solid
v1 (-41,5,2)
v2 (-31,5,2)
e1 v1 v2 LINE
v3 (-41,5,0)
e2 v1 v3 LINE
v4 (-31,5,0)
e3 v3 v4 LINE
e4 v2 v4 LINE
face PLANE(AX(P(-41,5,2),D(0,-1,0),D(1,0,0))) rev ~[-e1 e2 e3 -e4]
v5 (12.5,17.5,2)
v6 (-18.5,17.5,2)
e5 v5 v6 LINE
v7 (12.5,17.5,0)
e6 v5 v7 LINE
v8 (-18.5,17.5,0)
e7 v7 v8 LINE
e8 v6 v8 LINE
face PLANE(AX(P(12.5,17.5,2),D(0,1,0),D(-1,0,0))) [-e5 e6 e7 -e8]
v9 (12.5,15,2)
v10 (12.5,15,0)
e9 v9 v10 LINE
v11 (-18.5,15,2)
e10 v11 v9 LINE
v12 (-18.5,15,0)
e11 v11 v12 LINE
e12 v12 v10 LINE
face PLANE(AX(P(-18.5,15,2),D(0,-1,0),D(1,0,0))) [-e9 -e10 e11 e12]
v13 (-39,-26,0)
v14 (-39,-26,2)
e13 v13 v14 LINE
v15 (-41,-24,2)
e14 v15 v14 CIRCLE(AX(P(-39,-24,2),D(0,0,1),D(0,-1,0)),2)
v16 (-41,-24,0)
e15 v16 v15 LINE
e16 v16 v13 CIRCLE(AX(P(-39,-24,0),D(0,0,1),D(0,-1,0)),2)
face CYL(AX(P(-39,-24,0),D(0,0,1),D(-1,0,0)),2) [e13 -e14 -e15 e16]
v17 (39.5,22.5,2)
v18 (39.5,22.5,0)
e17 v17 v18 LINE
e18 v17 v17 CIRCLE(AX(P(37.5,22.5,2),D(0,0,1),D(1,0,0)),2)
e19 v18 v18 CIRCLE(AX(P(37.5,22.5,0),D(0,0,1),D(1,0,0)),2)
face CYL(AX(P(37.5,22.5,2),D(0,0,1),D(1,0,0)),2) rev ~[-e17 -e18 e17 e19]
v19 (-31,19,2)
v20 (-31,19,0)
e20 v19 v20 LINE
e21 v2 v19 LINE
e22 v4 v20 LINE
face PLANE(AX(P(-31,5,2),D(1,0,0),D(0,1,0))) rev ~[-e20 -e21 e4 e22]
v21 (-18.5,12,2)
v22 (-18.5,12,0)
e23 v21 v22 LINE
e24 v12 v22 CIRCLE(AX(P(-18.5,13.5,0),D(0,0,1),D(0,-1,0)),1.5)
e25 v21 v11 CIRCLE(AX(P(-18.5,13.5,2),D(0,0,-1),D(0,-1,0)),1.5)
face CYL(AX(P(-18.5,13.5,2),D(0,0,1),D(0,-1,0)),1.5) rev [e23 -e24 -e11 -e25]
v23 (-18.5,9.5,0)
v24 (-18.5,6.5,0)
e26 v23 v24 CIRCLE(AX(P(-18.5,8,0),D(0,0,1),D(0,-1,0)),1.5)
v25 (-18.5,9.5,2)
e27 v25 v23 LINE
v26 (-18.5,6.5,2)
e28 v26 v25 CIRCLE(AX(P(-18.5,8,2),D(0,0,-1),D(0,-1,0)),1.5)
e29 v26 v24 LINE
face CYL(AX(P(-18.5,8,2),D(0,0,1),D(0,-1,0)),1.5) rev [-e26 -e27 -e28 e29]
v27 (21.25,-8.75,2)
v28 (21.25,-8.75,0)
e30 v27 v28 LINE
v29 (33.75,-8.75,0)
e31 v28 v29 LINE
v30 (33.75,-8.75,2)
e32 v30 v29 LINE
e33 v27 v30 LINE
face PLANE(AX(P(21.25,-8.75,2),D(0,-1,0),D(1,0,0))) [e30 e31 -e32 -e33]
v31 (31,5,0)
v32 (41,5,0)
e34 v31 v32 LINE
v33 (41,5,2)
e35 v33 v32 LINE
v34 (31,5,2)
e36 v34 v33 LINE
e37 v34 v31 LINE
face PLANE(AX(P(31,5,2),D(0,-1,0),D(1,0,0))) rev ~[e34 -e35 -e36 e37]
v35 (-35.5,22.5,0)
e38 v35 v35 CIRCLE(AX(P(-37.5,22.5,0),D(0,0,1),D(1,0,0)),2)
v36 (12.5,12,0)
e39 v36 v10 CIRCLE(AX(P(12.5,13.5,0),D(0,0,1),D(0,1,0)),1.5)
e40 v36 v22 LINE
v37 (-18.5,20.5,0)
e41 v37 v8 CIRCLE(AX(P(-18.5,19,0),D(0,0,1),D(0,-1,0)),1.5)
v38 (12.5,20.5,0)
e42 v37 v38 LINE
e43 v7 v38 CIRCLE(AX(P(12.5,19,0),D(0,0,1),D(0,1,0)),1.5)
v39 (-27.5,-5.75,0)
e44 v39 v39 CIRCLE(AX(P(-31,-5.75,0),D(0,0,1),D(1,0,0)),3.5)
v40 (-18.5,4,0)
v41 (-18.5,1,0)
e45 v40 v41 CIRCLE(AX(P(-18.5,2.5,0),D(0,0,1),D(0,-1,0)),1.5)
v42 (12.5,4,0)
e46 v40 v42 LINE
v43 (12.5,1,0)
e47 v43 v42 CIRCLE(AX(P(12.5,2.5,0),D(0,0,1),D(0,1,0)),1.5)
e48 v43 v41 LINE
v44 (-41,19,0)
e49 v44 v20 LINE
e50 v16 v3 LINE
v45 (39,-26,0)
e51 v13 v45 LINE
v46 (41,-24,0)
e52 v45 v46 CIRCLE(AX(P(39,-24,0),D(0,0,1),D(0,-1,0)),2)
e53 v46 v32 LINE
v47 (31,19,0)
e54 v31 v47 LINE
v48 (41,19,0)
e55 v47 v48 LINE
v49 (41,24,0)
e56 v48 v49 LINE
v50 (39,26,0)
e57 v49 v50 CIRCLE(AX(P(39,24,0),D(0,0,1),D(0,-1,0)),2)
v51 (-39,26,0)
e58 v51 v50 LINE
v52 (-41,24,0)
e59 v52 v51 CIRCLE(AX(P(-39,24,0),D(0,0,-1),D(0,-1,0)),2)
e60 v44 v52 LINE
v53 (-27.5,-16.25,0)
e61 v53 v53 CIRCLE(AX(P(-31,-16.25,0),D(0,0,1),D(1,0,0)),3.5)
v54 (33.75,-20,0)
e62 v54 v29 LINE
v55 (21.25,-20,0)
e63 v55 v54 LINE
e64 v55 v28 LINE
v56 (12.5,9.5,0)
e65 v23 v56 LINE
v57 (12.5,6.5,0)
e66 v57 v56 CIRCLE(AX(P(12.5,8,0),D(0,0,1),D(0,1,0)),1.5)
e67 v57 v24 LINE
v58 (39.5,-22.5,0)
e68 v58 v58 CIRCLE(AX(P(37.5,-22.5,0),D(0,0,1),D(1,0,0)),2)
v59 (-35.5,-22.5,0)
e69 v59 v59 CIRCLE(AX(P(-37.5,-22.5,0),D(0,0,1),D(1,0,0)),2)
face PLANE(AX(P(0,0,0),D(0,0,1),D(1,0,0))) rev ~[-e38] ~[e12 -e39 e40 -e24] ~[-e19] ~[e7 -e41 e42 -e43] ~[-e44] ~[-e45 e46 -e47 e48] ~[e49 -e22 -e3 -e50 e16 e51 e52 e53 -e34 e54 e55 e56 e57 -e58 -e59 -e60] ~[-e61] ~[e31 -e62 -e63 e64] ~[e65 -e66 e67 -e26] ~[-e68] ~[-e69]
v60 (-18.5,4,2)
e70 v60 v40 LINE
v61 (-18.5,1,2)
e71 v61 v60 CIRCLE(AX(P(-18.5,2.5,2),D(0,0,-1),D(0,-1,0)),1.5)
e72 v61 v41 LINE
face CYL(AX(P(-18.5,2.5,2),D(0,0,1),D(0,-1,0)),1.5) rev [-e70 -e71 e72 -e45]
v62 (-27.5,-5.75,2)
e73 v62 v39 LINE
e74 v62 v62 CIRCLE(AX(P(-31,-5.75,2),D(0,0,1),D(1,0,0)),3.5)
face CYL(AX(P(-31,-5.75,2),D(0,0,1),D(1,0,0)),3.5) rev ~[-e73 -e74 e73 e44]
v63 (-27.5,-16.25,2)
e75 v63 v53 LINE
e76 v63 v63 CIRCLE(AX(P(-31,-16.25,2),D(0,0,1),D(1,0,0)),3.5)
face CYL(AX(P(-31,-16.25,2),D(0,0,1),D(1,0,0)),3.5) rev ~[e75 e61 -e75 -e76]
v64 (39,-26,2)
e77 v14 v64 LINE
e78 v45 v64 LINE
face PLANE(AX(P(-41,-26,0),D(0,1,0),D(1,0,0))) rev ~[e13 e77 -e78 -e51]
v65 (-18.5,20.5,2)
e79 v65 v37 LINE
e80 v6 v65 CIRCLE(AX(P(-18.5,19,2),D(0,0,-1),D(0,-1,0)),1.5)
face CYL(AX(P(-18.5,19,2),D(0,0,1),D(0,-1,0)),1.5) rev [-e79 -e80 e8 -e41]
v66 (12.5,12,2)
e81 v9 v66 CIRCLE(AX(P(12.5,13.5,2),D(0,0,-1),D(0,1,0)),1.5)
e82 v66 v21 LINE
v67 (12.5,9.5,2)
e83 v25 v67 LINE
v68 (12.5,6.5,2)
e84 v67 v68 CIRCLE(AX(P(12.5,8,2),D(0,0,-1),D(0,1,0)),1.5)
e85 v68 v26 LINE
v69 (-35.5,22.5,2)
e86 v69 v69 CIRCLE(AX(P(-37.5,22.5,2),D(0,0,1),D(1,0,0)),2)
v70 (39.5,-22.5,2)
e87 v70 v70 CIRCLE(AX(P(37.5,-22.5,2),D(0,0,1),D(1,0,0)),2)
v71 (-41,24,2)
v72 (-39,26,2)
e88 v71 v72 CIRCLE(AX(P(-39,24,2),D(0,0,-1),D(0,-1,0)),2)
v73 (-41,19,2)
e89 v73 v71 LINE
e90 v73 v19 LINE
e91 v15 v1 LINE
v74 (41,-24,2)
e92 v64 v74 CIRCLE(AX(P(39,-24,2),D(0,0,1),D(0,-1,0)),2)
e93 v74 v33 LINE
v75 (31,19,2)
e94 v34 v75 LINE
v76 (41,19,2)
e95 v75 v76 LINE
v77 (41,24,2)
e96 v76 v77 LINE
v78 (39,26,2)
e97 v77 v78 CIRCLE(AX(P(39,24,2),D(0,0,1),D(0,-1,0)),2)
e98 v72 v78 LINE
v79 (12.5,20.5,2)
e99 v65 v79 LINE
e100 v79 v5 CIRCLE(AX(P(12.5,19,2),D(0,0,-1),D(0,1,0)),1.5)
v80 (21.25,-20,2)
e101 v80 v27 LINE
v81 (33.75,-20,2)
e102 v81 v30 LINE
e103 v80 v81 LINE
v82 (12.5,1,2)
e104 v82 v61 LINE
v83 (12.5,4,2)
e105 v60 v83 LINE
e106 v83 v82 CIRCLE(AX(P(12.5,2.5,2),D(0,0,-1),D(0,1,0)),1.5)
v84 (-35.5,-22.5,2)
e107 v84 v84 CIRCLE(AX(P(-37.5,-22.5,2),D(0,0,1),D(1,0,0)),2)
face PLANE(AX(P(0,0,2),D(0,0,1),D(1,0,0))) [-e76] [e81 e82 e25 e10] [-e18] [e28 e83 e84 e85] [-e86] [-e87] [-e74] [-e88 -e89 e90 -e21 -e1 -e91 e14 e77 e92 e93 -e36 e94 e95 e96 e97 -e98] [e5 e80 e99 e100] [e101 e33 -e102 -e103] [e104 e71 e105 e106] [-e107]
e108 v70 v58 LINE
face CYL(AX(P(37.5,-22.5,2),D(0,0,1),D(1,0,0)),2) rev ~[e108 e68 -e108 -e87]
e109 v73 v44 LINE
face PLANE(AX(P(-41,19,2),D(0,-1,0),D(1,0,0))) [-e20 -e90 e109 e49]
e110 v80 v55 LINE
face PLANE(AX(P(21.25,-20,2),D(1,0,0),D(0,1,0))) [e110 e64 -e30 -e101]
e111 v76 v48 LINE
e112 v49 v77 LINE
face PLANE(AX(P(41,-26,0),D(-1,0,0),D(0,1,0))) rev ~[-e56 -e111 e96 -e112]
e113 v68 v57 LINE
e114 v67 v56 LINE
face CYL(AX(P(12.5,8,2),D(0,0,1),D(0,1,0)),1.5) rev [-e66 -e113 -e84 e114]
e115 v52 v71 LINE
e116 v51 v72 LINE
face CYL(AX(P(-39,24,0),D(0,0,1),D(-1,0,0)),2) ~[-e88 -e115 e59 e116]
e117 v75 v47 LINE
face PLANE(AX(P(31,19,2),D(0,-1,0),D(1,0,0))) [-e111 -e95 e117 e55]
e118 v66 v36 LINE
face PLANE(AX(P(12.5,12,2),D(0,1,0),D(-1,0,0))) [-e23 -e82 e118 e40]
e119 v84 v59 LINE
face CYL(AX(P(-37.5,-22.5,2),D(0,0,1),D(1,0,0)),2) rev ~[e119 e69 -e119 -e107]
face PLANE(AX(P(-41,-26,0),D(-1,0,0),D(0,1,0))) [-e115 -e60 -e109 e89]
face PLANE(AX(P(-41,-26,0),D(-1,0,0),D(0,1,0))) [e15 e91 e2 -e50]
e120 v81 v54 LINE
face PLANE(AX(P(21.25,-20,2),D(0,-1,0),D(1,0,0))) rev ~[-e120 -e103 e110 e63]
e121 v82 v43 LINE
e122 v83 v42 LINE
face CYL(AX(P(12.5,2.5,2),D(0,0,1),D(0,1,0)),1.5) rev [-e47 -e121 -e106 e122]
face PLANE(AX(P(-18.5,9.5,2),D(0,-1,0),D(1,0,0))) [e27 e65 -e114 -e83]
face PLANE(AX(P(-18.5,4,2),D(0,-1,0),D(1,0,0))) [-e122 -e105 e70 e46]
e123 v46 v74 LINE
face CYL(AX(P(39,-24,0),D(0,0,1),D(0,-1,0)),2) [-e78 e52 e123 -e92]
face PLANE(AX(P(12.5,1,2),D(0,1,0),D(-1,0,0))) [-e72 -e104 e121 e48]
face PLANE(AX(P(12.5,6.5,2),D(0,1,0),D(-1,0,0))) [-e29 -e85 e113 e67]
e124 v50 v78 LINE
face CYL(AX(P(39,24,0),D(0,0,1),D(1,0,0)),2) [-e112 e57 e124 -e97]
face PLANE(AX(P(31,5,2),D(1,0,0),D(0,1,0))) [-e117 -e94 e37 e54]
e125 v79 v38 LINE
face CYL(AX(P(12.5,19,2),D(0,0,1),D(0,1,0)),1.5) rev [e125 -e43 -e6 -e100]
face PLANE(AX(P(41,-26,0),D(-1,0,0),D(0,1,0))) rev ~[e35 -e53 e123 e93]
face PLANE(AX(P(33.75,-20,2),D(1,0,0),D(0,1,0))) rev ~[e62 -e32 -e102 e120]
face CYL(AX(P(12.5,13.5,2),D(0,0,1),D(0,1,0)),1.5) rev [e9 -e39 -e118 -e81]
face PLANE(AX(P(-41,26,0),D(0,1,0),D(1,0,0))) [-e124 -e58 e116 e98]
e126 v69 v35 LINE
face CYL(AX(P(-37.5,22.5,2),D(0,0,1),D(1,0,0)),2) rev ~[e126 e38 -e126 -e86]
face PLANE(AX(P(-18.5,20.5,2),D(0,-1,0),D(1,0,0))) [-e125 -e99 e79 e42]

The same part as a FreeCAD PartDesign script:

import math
import FreeCAD as App
import Part
import Sketcher
from FreeCAD import Vector
Q = App.Units.Quantity


def edges_at(feature, points):
    """Names of the edges that pass closest to the given points."""
    edges = feature.Shape.Edges
    near = lambda p: min(range(len(edges)), key=lambda i: edges[i].distToShape(Part.Vertex(*p))[0])
    return sorted({f"Edge{near(p) + 1}" for p in points})


def add_polygon(sketch, points):
    """Adds a closed chain of lines whose ends are joined by coincident constraints."""
    first, n = sketch.GeometryCount, len(points)
    for a, b in zip(points, points[1:] + points[:1]):
        sketch.addGeometry(Part.LineSegment(App.Vector(*a, 0), App.Vector(*b, 0)), False)
    for i in range(n):
        sketch.addConstraint(Sketcher.Constraint("Coincident", first + i, 2, first + (i + 1) % n, 1))

doc = App.newDocument("Part")
params = doc.addObject("Spreadsheet::Sheet", "Params")
for row, (alias, value) in enumerate([
    ("sketch1_width", "82 mm"),
    ("sketch1_height", "52 mm"),
    ("pad1_length", "2 mm"),
    ("fillet_radius", "2 mm"),
    ("sketch2_radius", "1.5 mm"),
    ("sketch2_width", "31 mm"),
    ("sketch3_diameter", "4 mm"),
    ("sketch4_diameter", "7 mm"),
    ("sketch4_width", "10 mm"),
    ("sketch4_height", "14 mm"),
    ("sketch4_width2", "12.5 mm"),
    ("sketch4_height2", "11.25 mm"),
], start=1):
    params.set(f"A{row}", alias)
    params.set(f"B{row}", "=" + value)
    params.setAlias(f"B{row}", alias)

body = doc.addObject("PartDesign::Body", "Body")

# Sketch on XY plane
sketch1 = body.newObject("Sketcher::SketchObject", "Sketch")
sketch1.AttachmentSupport = (doc.getObject("XY_Plane"), [""])
sketch1.MapMode = "FlatFace"
add_polygon(sketch1, [(-41, 26), (-41, -26), (41, -26), (41, 26)])  # lines 0-3
sketch1.addConstraint([
    Sketcher.Constraint("Vertical", 0),
    Sketcher.Constraint("Horizontal", 1),
    Sketcher.Constraint("Vertical", 2),
    Sketcher.Constraint("Horizontal", 3),
    Sketcher.Constraint("Symmetric", 0, 2, 2, 2, -1, 1),
    Sketcher.Constraint("DistanceX", 1, 1, 1, 2, Q("82 mm")),
    Sketcher.Constraint("DistanceY", 0, 2, 0, 1, Q("52 mm")),
])
sketch1.setExpression("Constraints[9]", "Params.sketch1_width")
sketch1.setExpression("Constraints[10]", "Params.sketch1_height")
pad1 = body.newObject("PartDesign::Pad", "Pad")
pad1.Profile = sketch1
pad1.setExpression("Length", "Params.pad1_length")
doc.recompute()

fillet = body.newObject("PartDesign::Fillet", "Fillet")
fillet.Base = (pad1, edges_at(pad1, [
    (-41, 26, 1),
    (41, 26, 1),
    (41, -26, 1),
    (-41, -26, 1),
]))
fillet.setExpression("Radius", "Params.fillet_radius")

# Sketch on XY plane
sketch2 = body.newObject("Sketcher::SketchObject", "Sketch001")
sketch2.AttachmentSupport = (doc.getObject("XY_Plane"), [""])
sketch2.MapMode = "FlatFace"
sketch2.AttachmentOffset = App.Placement(Vector(0, 0, 2), App.Rotation())
sketch2.addGeometry([
    Part.LineSegment(Vector(12.5, 20.5, 0), Vector(-18.5, 20.5, 0)),  # 0
    Part.ArcOfCircle(Part.Circle(Vector(-18.5, 19, 0), Vector(0, 0, 1), 1.5), math.radians(90), math.radians(270)),  # 1
    Part.LineSegment(Vector(-18.5, 17.5, 0), Vector(12.5, 17.5, 0)),  # 2
    Part.ArcOfCircle(Part.Circle(Vector(12.5, 19, 0), Vector(0, 0, 1), 1.5), math.radians(-90), math.radians(90)),  # 3
    Part.LineSegment(Vector(12.5, 15, 0), Vector(-18.5, 15, 0)),  # 4
    Part.ArcOfCircle(Part.Circle(Vector(-18.5, 13.5, 0), Vector(0, 0, 1), 1.5), math.radians(90), math.radians(270)),  # 5
    Part.LineSegment(Vector(-18.5, 12, 0), Vector(12.5, 12, 0)),  # 6
    Part.ArcOfCircle(Part.Circle(Vector(12.5, 13.5, 0), Vector(0, 0, 1), 1.5), math.radians(-90), math.radians(90)),  # 7
    Part.LineSegment(Vector(12.5, 9.5, 0), Vector(-18.5, 9.5, 0)),  # 8
    Part.ArcOfCircle(Part.Circle(Vector(-18.5, 8, 0), Vector(0, 0, 1), 1.5), math.radians(90), math.radians(270)),  # 9
    Part.LineSegment(Vector(-18.5, 6.5, 0), Vector(12.5, 6.5, 0)),  # 10
    Part.ArcOfCircle(Part.Circle(Vector(12.5, 8, 0), Vector(0, 0, 1), 1.5), math.radians(-90), math.radians(90)),  # 11
    Part.LineSegment(Vector(12.5, 4, 0), Vector(-18.5, 4, 0)),  # 12
    Part.ArcOfCircle(Part.Circle(Vector(-18.5, 2.5, 0), Vector(0, 0, 1), 1.5), math.radians(90), math.radians(270)),  # 13
    Part.LineSegment(Vector(-18.5, 1, 0), Vector(12.5, 1, 0)),  # 14
    Part.ArcOfCircle(Part.Circle(Vector(12.5, 2.5, 0), Vector(0, 0, 1), 1.5), math.radians(-90), math.radians(90)),  # 15
], False)
sketch2.addConstraint([
    Sketcher.Constraint("Tangent", 0, 2, 1, 1),
    Sketcher.Constraint("Tangent", 1, 2, 2, 1),
    Sketcher.Constraint("Tangent", 2, 2, 3, 1),
    Sketcher.Constraint("Tangent", 3, 2, 0, 1),
    Sketcher.Constraint("Tangent", 4, 2, 5, 1),
    Sketcher.Constraint("Tangent", 5, 2, 6, 1),
    Sketcher.Constraint("Tangent", 6, 2, 7, 1),
    Sketcher.Constraint("Tangent", 7, 2, 4, 1),
    Sketcher.Constraint("Tangent", 8, 2, 9, 1),
    Sketcher.Constraint("Tangent", 9, 2, 10, 1),
    Sketcher.Constraint("Tangent", 10, 2, 11, 1),
    Sketcher.Constraint("Tangent", 11, 2, 8, 1),
    Sketcher.Constraint("Tangent", 12, 2, 13, 1),
    Sketcher.Constraint("Tangent", 13, 2, 14, 1),
    Sketcher.Constraint("Tangent", 14, 2, 15, 1),
    Sketcher.Constraint("Tangent", 15, 2, 12, 1),
    Sketcher.Constraint("Horizontal", 0),
    Sketcher.Constraint("Horizontal", 2),
    Sketcher.Constraint("Horizontal", 4),
    Sketcher.Constraint("Horizontal", 6),
    Sketcher.Constraint("Horizontal", 8),
    Sketcher.Constraint("Horizontal", 10),
    Sketcher.Constraint("Horizontal", 12),
    Sketcher.Constraint("Horizontal", 14),
    Sketcher.Constraint("Equal", 3, 5),
    Sketcher.Constraint("Equal", 7, 9),
    Sketcher.Constraint("Equal", 11, 13),
    Sketcher.Constraint("Vertical", 1, 3, 5, 3),
    Sketcher.Constraint("Vertical", 3, 3, 7, 3),
    Sketcher.Constraint("Vertical", 5, 3, 9, 3),
    Sketcher.Constraint("Vertical", 7, 3, 11, 3),
    Sketcher.Constraint("Vertical", 9, 3, 13, 3),
    Sketcher.Constraint("Vertical", 11, 3, 15, 3),
    Sketcher.Constraint("Radius", 1, Q("1.5 mm")),
    Sketcher.Constraint("DistanceX", 0, 2, 0, 1, Q("31 mm")),
    Sketcher.Constraint("DistanceY", -1, 1, 1, 3, Q("19 mm")),
    Sketcher.Constraint("DistanceY", -1, 1, 9, 3, Q("8 mm")),
    Sketcher.Constraint("DistanceY", -1, 1, 4, 2, Q("15 mm")),
    Sketcher.Constraint("DistanceY", -1, 1, 12, 2, Q("4 mm")),
    Sketcher.Constraint("DistanceX", 1, 3, -1, 1, Q("18.5 mm")),
])
sketch2.setExpression("Constraints[33]", "Params.sketch2_radius")
sketch2.setExpression("Constraints[34]", "Params.sketch2_width")
pocket1 = body.newObject("PartDesign::Pocket", "Pocket")
pocket1.Profile = sketch2
pocket1.Type = "ThroughAll"

# Sketch on XY plane
sketch3 = body.newObject("Sketcher::SketchObject", "Sketch002")
sketch3.AttachmentSupport = (doc.getObject("XY_Plane"), [""])
sketch3.MapMode = "FlatFace"
sketch3.AttachmentOffset = App.Placement(Vector(0, 0, 2), App.Rotation())
sketch3.addGeometry([
    Part.Circle(Vector(37.5, 22.5, 0), Vector(0, 0, 1), 2),
    Part.Circle(Vector(-37.5, 22.5, 0), Vector(0, 0, 1), 2),
    Part.Circle(Vector(37.5, -22.5, 0), Vector(0, 0, 1), 2),
    Part.Circle(Vector(-37.5, -22.5, 0), Vector(0, 0, 1), 2),
], False)
sketch3.addConstraint([
    Sketcher.Constraint("Equal", 0, 1),
    Sketcher.Constraint("Equal", 1, 2),
    Sketcher.Constraint("Equal", 2, 3),
    Sketcher.Constraint("Symmetric", 1, 3, 2, 3, -1, 1),
    Sketcher.Constraint("Symmetric", 0, 3, 3, 3, -1, 1),
    Sketcher.Constraint("Symmetric", 0, 3, 1, 3, -2),
    Sketcher.Constraint("Diameter", 0, Q("4 mm")),
    Sketcher.Constraint("DistanceX", 1, 3, 0, 3, Q("75 mm")),
    Sketcher.Constraint("DistanceY", 2, 3, 0, 3, Q("45 mm")),
])
sketch3.setExpression("Constraints[6]", "Params.sketch3_diameter")
pocket2 = body.newObject("PartDesign::Pocket", "Pocket001")
pocket2.Profile = sketch3
pocket2.Type = "ThroughAll"

# Sketch on XY plane
sketch4 = body.newObject("Sketcher::SketchObject", "Sketch003")
sketch4.AttachmentSupport = (doc.getObject("XY_Plane"), [""])
sketch4.MapMode = "FlatFace"
sketch4.AttachmentOffset = App.Placement(Vector(0, 0, 2), App.Rotation())
sketch4.addGeometry(Part.Circle(Vector(-31, -5.75, 0), Vector(0, 0, 1), 3.5), False)  # 0
sketch4.addGeometry(Part.Circle(Vector(-31, -16.25, 0), Vector(0, 0, 1), 3.5), False)  # 1
add_polygon(sketch4, [(-41, 19), (-41, 5), (-31, 5), (-31, 19)])  # lines 2-5
add_polygon(sketch4, [(31, 19), (31, 5), (41, 5), (41, 19)])  # lines 6-9
add_polygon(sketch4, [(21.25, -8.75), (21.25, -20), (33.75, -20), (33.75, -8.75)])  # lines 10-13
sketch4.addConstraint([
    Sketcher.Constraint("Vertical", 2),
    Sketcher.Constraint("Horizontal", 3),
    Sketcher.Constraint("Vertical", 4),
    Sketcher.Constraint("Horizontal", 5),
    Sketcher.Constraint("Vertical", 6),
    Sketcher.Constraint("Horizontal", 7),
    Sketcher.Constraint("Vertical", 8),
    Sketcher.Constraint("Horizontal", 9),
    Sketcher.Constraint("Vertical", 10),
    Sketcher.Constraint("Horizontal", 11),
    Sketcher.Constraint("Vertical", 12),
    Sketcher.Constraint("Horizontal", 13),
    Sketcher.Constraint("Equal", 0, 1),
    Sketcher.Constraint("Symmetric", 3, 2, 6, 2, -2),
    Sketcher.Constraint("Symmetric", 5, 2, 8, 2, -2),
    Sketcher.Constraint("Vertical", 0, 3, 1, 3),
    Sketcher.Constraint("Vertical", 1, 3, 3, 2),
    Sketcher.Constraint("Diameter", 0, Q("7 mm")),
    Sketcher.Constraint("DistanceX", 3, 1, 3, 2, Q("10 mm")),
    Sketcher.Constraint("DistanceY", 2, 2, 2, 1, Q("14 mm")),
    Sketcher.Constraint("DistanceX", 11, 1, 11, 2, Q("12.5 mm")),
    Sketcher.Constraint("DistanceX", 0, 3, -1, 1, Q("31 mm")),
    Sketcher.Constraint("DistanceY", -1, 1, 2, 2, Q("5 mm")),
    Sketcher.Constraint("DistanceY", 10, 2, -1, 1, Q("20 mm")),
    Sketcher.Constraint("DistanceY", 10, 2, 10, 1, Q("11.25 mm")),
    Sketcher.Constraint("DistanceY", 1, 3, 0, 3, Q("10.5 mm")),
    Sketcher.Constraint("DistanceY", 0, 3, -1, 1, Q("5.75 mm")),
    Sketcher.Constraint("DistanceX", -1, 1, 10, 2, Q("21.25 mm")),
])
sketch4.setExpression("Constraints[29]", "Params.sketch4_diameter")
sketch4.setExpression("Constraints[30]", "Params.sketch4_width")
sketch4.setExpression("Constraints[31]", "Params.sketch4_height")
sketch4.setExpression("Constraints[32]", "Params.sketch4_width2")
sketch4.setExpression("Constraints[36]", "Params.sketch4_height2")
pocket3 = body.newObject("PartDesign::Pocket", "Pocket002")
pocket3.Profile = sketch4
pocket3.Type = "ThroughAll"

doc.recompute()
